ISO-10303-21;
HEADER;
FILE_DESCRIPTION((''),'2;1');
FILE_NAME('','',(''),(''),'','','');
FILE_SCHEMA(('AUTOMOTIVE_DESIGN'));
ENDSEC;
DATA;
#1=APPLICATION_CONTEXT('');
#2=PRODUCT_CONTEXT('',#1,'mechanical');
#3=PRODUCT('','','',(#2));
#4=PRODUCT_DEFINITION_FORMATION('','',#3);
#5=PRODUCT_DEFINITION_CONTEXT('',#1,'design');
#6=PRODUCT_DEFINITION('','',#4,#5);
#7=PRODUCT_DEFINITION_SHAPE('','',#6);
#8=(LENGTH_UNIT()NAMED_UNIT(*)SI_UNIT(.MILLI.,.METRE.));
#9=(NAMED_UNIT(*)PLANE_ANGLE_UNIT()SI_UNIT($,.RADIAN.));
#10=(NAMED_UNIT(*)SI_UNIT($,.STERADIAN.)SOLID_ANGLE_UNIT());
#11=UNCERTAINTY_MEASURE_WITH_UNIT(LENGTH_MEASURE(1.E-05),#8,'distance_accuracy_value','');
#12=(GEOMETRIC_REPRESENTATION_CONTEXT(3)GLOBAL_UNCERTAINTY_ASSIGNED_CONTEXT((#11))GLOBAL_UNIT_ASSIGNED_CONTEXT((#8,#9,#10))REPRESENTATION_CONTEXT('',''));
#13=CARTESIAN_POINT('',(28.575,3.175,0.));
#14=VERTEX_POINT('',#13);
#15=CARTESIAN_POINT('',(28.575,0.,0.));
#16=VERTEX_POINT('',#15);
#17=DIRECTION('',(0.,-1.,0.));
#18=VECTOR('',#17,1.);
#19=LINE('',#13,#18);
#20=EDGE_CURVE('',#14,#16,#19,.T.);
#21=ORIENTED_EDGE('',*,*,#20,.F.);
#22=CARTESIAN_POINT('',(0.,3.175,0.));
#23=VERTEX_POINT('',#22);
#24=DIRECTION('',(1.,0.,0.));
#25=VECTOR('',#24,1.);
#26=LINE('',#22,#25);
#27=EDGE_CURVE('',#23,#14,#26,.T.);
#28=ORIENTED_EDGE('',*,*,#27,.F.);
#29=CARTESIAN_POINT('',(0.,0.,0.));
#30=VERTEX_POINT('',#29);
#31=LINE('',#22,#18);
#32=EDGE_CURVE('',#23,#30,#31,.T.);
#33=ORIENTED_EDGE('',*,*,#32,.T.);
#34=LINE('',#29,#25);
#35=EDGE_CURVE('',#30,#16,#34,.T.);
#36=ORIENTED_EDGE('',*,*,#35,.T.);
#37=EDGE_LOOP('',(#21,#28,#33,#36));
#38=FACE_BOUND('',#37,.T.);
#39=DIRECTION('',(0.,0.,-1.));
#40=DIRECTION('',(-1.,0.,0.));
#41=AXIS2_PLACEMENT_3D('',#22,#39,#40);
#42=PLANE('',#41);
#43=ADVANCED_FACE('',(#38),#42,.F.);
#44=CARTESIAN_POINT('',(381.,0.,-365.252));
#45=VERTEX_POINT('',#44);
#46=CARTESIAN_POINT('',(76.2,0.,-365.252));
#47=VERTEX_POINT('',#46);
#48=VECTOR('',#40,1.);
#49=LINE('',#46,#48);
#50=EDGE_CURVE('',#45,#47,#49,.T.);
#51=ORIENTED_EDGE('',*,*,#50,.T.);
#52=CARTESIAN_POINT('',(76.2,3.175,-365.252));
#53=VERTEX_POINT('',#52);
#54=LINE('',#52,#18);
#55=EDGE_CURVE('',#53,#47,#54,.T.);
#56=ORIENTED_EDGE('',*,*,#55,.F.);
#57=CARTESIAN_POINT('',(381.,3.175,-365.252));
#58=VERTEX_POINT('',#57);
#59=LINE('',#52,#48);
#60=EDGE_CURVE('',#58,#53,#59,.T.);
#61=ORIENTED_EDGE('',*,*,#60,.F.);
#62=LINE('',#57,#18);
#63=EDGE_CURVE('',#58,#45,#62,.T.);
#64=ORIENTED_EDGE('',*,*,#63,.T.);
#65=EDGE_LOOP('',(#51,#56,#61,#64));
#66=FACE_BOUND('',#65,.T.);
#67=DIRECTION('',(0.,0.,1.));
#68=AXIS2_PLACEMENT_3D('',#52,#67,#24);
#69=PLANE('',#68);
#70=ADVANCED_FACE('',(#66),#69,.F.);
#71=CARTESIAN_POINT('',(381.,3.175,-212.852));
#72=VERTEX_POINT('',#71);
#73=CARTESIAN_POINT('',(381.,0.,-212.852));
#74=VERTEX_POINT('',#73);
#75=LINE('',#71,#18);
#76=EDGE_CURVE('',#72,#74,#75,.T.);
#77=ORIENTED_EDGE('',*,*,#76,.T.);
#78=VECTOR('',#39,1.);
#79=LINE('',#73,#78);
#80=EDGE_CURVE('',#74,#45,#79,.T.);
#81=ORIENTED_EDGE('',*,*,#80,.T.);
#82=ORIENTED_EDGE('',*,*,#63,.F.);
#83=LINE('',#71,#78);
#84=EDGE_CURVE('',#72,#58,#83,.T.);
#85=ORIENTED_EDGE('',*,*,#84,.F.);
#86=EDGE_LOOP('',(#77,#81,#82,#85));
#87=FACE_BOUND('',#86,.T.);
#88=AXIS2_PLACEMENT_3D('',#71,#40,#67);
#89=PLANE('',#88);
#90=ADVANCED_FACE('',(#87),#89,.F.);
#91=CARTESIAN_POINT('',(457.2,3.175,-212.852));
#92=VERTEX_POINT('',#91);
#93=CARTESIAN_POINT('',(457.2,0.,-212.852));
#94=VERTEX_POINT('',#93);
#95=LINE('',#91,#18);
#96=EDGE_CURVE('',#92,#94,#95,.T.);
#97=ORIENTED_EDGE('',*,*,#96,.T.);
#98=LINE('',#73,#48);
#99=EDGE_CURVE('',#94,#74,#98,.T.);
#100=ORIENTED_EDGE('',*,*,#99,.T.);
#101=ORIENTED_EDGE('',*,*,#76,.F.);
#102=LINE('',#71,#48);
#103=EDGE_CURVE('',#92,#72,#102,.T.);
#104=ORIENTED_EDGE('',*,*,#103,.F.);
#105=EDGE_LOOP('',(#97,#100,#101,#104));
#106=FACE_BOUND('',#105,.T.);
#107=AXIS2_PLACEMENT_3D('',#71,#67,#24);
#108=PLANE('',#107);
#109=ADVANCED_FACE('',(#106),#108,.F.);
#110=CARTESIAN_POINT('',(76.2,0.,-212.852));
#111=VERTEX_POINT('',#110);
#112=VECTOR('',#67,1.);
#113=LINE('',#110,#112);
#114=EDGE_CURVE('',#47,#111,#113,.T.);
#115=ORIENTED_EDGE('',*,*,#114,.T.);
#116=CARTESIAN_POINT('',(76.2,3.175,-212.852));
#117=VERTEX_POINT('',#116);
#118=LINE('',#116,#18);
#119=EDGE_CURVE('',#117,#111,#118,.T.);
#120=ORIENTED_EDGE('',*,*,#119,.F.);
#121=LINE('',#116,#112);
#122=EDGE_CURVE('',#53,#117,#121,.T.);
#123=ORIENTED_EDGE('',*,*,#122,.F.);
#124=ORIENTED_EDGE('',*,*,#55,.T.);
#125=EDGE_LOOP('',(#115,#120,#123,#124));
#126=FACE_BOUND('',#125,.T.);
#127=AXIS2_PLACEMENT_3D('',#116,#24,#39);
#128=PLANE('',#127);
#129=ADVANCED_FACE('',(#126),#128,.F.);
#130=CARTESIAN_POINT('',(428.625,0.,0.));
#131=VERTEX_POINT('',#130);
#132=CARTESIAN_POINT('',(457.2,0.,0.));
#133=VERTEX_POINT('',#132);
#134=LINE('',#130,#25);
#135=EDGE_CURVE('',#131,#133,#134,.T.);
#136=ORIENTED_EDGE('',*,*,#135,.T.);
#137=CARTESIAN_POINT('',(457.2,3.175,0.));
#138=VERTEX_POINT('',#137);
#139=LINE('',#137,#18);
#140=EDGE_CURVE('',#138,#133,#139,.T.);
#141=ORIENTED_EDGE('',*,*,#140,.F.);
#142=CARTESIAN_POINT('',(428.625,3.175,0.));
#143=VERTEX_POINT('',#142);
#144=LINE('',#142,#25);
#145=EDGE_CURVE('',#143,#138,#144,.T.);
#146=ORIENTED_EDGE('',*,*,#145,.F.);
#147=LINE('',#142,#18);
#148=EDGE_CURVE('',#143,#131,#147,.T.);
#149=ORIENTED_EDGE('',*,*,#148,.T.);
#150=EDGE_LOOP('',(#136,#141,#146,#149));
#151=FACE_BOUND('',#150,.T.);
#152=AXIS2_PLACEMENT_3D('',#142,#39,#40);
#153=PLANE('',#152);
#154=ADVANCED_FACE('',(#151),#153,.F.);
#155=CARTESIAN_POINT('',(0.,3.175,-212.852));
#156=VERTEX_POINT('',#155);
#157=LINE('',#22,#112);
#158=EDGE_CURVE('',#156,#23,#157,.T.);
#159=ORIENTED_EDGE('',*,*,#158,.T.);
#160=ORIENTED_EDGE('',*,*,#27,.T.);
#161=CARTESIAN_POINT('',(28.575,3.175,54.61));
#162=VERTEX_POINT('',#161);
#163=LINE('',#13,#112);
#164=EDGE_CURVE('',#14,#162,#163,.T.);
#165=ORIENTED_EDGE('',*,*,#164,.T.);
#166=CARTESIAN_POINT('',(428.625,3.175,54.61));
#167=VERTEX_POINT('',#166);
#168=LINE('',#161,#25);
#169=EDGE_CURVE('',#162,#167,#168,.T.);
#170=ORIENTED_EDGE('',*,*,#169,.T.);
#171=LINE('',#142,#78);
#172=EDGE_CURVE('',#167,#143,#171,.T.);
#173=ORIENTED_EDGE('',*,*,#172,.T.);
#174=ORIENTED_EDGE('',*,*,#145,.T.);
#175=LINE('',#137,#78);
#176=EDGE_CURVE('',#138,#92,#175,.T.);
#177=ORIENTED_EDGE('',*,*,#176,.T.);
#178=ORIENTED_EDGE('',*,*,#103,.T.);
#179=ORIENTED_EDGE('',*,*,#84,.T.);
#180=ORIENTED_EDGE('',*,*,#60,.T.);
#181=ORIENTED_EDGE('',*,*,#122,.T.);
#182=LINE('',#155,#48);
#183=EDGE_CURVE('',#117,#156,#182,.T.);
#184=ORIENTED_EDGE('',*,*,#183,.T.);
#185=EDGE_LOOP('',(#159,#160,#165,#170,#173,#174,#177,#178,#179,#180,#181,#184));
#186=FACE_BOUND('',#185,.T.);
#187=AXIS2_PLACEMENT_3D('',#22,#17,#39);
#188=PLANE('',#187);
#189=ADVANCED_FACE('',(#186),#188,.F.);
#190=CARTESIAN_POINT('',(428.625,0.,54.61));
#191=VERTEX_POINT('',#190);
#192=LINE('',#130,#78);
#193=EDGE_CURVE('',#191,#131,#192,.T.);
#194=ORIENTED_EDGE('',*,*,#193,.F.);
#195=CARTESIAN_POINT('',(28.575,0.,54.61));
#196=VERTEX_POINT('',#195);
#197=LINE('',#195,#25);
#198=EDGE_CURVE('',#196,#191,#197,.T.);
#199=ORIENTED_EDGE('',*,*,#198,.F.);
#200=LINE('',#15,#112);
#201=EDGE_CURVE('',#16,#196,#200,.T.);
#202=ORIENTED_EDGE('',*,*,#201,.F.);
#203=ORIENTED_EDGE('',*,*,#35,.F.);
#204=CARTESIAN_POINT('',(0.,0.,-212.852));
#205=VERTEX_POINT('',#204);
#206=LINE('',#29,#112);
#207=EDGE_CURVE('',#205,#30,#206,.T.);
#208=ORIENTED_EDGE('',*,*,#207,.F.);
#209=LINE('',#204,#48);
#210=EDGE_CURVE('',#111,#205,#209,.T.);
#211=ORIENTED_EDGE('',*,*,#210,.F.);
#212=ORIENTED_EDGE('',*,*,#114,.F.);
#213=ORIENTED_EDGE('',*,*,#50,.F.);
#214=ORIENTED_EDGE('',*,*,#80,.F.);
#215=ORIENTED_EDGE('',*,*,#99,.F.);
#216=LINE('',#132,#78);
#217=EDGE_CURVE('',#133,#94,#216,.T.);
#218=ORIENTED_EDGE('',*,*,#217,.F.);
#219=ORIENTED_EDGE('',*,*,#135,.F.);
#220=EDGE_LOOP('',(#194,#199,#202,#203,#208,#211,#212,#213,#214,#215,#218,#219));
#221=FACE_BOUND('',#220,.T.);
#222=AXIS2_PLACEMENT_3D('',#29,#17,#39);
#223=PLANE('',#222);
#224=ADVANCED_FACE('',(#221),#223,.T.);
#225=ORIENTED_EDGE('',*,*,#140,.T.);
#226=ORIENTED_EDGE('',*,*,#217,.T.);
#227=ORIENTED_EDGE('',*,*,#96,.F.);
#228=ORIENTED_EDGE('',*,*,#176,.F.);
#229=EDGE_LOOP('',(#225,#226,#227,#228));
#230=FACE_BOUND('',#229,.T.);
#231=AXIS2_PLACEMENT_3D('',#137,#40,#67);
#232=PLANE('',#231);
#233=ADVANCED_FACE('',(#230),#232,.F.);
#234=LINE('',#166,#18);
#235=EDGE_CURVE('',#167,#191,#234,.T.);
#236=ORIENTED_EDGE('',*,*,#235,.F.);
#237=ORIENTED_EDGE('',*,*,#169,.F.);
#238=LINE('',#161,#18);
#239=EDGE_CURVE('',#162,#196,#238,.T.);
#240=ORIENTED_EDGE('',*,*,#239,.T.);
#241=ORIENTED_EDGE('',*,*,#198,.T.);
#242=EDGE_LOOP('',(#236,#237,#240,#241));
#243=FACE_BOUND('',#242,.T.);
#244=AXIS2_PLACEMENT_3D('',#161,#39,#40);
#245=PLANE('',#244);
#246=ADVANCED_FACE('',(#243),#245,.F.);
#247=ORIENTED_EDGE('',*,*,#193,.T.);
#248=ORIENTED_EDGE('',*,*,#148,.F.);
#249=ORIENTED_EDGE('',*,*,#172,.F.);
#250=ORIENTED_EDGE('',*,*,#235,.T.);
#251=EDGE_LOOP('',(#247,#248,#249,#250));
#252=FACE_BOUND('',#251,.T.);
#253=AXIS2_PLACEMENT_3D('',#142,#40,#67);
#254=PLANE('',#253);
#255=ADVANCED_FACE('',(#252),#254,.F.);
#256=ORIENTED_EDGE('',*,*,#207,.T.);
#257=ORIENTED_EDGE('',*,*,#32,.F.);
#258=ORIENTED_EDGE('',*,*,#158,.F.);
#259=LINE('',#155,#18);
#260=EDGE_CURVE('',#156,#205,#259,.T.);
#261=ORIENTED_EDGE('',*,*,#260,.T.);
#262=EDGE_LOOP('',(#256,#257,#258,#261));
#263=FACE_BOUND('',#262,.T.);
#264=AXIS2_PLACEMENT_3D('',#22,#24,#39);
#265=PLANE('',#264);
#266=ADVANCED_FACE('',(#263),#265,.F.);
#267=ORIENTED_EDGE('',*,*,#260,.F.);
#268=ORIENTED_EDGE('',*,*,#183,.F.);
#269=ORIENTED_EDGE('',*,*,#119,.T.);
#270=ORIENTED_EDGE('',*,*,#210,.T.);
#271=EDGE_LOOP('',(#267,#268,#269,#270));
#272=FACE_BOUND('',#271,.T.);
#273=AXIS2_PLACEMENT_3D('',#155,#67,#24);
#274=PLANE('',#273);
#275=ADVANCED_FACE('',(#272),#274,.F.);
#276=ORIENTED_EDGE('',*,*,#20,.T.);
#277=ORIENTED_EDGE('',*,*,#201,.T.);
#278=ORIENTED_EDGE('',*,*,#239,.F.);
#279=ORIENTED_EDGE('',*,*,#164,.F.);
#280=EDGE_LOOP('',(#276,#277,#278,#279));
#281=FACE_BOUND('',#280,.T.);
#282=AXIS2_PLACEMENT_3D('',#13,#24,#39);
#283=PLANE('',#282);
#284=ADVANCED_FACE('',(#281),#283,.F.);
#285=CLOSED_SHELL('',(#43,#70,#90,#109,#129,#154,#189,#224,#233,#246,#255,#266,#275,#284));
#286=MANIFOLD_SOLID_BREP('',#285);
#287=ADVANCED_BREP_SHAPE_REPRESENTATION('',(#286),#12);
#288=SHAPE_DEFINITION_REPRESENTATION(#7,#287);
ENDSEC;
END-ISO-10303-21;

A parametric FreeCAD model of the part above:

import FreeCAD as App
import Part
import Sketcher

V = App.Vector
Q = App.Units.Quantity

doc = App.newDocument("Part")
body = doc.addObject("PartDesign::Body", "Body")

# Sketch on XZ plane
sketch1 = body.newObject("Sketcher::SketchObject", "Sketch")
sketch1.AttachmentSupport = (doc.getObject("XZ_Plane"), [""])
sketch1.MapMode = "FlatFace"
sketch1.addGeometry([
    Part.LineSegment(V(457, -213, 0), V(381, -213, 0)),  # 0
    Part.LineSegment(V(381, -213, 0), V(381, -365, 0)),  # 1
    Part.LineSegment(V(381, -365, 0), V(76, -365, 0)),  # 2
    Part.LineSegment(V(76, -365, 0), V(76, -213, 0)),  # 3
    Part.LineSegment(V(76, -213, 0), V(0, -213, 0)),  # 4
    Part.LineSegment(V(0, -213, 0), V(0, 0, 0)),  # 5
    Part.LineSegment(V(0, 0, 0), V(29, 0, 0)),  # 6
    Part.LineSegment(V(29, 0, 0), V(29, 55, 0)),  # 7
    Part.LineSegment(V(29, 55, 0), V(429, 55, 0)),  # 8
    Part.LineSegment(V(429, 55, 0), V(429, 0, 0)),  # 9
    Part.LineSegment(V(429, 0, 0), V(457, 0, 0)),  # 10
    Part.LineSegment(V(457, 0, 0), V(457, -213, 0)),  # 11
], False)
sketch1.addConstraint([
    Sketcher.Constraint("Coincident", 0, 2, 1, 1),
    Sketcher.Constraint("Coincident", 1, 2, 2, 1),
    Sketcher.Constraint("Coincident", 2, 2, 3, 1),
    Sketcher.Constraint("Coincident", 3, 2, 4, 1),
    Sketcher.Constraint("Coincident", 4, 2, 5, 1),
    Sketcher.Constraint("Coincident", 5, 2, 6, 1),
    Sketcher.Constraint("Coincident", 6, 2, 7, 1),
    Sketcher.Constraint("Coincident", 7, 2, 8, 1),
    Sketcher.Constraint("Coincident", 8, 2, 9, 1),
    Sketcher.Constraint("Coincident", 9, 2, 10, 1),
    Sketcher.Constraint("Coincident", 10, 2, 11, 1),
    Sketcher.Constraint("Coincident", 11, 2, 0, 1),
    Sketcher.Constraint("Horizontal", 0),
    Sketcher.Constraint("Vertical", 1),
    Sketcher.Constraint("Horizontal", 2),
    Sketcher.Constraint("Vertical", 3),
    Sketcher.Constraint("Horizontal", 4),
    Sketcher.Constraint("Vertical", 5),
    Sketcher.Constraint("Horizontal", 6),
    Sketcher.Constraint("Vertical", 7),
    Sketcher.Constraint("Horizontal", 8),
    Sketcher.Constraint("Vertical", 9),
    Sketcher.Constraint("Horizontal", 10),
    Sketcher.Constraint("Vertical", 11),
    Sketcher.Constraint("Coincident", 5, 2, -1, 1),
    Sketcher.Constraint("PointOnObject", 9, 2, -1),
    Sketcher.Constraint("Horizontal", 0, 2, 3, 2),
    Sketcher.Constraint("Equal", 0, 4),
    Sketcher.Constraint("Equal", 6, 10),
    Sketcher.Constraint("DistanceX", 0, 2, 0, 1, Q("3 in")),
    Sketcher.Constraint("DistanceX", 2, 2, 2, 1, Q("12 in")),
    Sketcher.Constraint("DistanceY", 1, 2, 1, 1, Q("6 in")),
    Sketcher.Constraint("DistanceX", 8, 1, 8, 2, Q("15.75 in")),
    Sketcher.Constraint("DistanceY", 5, 1, 5, 2, Q("8.38 in")),
    Sketcher.Constraint("DistanceY", 7, 1, 7, 2, Q("2.15 in")),
])
pad1 = body.newObject("PartDesign::Pad", "Pad")
pad1.Profile = sketch1
pad1.Length = Q("0.125 in")
pad1.Reversed = True

doc.recompute()
